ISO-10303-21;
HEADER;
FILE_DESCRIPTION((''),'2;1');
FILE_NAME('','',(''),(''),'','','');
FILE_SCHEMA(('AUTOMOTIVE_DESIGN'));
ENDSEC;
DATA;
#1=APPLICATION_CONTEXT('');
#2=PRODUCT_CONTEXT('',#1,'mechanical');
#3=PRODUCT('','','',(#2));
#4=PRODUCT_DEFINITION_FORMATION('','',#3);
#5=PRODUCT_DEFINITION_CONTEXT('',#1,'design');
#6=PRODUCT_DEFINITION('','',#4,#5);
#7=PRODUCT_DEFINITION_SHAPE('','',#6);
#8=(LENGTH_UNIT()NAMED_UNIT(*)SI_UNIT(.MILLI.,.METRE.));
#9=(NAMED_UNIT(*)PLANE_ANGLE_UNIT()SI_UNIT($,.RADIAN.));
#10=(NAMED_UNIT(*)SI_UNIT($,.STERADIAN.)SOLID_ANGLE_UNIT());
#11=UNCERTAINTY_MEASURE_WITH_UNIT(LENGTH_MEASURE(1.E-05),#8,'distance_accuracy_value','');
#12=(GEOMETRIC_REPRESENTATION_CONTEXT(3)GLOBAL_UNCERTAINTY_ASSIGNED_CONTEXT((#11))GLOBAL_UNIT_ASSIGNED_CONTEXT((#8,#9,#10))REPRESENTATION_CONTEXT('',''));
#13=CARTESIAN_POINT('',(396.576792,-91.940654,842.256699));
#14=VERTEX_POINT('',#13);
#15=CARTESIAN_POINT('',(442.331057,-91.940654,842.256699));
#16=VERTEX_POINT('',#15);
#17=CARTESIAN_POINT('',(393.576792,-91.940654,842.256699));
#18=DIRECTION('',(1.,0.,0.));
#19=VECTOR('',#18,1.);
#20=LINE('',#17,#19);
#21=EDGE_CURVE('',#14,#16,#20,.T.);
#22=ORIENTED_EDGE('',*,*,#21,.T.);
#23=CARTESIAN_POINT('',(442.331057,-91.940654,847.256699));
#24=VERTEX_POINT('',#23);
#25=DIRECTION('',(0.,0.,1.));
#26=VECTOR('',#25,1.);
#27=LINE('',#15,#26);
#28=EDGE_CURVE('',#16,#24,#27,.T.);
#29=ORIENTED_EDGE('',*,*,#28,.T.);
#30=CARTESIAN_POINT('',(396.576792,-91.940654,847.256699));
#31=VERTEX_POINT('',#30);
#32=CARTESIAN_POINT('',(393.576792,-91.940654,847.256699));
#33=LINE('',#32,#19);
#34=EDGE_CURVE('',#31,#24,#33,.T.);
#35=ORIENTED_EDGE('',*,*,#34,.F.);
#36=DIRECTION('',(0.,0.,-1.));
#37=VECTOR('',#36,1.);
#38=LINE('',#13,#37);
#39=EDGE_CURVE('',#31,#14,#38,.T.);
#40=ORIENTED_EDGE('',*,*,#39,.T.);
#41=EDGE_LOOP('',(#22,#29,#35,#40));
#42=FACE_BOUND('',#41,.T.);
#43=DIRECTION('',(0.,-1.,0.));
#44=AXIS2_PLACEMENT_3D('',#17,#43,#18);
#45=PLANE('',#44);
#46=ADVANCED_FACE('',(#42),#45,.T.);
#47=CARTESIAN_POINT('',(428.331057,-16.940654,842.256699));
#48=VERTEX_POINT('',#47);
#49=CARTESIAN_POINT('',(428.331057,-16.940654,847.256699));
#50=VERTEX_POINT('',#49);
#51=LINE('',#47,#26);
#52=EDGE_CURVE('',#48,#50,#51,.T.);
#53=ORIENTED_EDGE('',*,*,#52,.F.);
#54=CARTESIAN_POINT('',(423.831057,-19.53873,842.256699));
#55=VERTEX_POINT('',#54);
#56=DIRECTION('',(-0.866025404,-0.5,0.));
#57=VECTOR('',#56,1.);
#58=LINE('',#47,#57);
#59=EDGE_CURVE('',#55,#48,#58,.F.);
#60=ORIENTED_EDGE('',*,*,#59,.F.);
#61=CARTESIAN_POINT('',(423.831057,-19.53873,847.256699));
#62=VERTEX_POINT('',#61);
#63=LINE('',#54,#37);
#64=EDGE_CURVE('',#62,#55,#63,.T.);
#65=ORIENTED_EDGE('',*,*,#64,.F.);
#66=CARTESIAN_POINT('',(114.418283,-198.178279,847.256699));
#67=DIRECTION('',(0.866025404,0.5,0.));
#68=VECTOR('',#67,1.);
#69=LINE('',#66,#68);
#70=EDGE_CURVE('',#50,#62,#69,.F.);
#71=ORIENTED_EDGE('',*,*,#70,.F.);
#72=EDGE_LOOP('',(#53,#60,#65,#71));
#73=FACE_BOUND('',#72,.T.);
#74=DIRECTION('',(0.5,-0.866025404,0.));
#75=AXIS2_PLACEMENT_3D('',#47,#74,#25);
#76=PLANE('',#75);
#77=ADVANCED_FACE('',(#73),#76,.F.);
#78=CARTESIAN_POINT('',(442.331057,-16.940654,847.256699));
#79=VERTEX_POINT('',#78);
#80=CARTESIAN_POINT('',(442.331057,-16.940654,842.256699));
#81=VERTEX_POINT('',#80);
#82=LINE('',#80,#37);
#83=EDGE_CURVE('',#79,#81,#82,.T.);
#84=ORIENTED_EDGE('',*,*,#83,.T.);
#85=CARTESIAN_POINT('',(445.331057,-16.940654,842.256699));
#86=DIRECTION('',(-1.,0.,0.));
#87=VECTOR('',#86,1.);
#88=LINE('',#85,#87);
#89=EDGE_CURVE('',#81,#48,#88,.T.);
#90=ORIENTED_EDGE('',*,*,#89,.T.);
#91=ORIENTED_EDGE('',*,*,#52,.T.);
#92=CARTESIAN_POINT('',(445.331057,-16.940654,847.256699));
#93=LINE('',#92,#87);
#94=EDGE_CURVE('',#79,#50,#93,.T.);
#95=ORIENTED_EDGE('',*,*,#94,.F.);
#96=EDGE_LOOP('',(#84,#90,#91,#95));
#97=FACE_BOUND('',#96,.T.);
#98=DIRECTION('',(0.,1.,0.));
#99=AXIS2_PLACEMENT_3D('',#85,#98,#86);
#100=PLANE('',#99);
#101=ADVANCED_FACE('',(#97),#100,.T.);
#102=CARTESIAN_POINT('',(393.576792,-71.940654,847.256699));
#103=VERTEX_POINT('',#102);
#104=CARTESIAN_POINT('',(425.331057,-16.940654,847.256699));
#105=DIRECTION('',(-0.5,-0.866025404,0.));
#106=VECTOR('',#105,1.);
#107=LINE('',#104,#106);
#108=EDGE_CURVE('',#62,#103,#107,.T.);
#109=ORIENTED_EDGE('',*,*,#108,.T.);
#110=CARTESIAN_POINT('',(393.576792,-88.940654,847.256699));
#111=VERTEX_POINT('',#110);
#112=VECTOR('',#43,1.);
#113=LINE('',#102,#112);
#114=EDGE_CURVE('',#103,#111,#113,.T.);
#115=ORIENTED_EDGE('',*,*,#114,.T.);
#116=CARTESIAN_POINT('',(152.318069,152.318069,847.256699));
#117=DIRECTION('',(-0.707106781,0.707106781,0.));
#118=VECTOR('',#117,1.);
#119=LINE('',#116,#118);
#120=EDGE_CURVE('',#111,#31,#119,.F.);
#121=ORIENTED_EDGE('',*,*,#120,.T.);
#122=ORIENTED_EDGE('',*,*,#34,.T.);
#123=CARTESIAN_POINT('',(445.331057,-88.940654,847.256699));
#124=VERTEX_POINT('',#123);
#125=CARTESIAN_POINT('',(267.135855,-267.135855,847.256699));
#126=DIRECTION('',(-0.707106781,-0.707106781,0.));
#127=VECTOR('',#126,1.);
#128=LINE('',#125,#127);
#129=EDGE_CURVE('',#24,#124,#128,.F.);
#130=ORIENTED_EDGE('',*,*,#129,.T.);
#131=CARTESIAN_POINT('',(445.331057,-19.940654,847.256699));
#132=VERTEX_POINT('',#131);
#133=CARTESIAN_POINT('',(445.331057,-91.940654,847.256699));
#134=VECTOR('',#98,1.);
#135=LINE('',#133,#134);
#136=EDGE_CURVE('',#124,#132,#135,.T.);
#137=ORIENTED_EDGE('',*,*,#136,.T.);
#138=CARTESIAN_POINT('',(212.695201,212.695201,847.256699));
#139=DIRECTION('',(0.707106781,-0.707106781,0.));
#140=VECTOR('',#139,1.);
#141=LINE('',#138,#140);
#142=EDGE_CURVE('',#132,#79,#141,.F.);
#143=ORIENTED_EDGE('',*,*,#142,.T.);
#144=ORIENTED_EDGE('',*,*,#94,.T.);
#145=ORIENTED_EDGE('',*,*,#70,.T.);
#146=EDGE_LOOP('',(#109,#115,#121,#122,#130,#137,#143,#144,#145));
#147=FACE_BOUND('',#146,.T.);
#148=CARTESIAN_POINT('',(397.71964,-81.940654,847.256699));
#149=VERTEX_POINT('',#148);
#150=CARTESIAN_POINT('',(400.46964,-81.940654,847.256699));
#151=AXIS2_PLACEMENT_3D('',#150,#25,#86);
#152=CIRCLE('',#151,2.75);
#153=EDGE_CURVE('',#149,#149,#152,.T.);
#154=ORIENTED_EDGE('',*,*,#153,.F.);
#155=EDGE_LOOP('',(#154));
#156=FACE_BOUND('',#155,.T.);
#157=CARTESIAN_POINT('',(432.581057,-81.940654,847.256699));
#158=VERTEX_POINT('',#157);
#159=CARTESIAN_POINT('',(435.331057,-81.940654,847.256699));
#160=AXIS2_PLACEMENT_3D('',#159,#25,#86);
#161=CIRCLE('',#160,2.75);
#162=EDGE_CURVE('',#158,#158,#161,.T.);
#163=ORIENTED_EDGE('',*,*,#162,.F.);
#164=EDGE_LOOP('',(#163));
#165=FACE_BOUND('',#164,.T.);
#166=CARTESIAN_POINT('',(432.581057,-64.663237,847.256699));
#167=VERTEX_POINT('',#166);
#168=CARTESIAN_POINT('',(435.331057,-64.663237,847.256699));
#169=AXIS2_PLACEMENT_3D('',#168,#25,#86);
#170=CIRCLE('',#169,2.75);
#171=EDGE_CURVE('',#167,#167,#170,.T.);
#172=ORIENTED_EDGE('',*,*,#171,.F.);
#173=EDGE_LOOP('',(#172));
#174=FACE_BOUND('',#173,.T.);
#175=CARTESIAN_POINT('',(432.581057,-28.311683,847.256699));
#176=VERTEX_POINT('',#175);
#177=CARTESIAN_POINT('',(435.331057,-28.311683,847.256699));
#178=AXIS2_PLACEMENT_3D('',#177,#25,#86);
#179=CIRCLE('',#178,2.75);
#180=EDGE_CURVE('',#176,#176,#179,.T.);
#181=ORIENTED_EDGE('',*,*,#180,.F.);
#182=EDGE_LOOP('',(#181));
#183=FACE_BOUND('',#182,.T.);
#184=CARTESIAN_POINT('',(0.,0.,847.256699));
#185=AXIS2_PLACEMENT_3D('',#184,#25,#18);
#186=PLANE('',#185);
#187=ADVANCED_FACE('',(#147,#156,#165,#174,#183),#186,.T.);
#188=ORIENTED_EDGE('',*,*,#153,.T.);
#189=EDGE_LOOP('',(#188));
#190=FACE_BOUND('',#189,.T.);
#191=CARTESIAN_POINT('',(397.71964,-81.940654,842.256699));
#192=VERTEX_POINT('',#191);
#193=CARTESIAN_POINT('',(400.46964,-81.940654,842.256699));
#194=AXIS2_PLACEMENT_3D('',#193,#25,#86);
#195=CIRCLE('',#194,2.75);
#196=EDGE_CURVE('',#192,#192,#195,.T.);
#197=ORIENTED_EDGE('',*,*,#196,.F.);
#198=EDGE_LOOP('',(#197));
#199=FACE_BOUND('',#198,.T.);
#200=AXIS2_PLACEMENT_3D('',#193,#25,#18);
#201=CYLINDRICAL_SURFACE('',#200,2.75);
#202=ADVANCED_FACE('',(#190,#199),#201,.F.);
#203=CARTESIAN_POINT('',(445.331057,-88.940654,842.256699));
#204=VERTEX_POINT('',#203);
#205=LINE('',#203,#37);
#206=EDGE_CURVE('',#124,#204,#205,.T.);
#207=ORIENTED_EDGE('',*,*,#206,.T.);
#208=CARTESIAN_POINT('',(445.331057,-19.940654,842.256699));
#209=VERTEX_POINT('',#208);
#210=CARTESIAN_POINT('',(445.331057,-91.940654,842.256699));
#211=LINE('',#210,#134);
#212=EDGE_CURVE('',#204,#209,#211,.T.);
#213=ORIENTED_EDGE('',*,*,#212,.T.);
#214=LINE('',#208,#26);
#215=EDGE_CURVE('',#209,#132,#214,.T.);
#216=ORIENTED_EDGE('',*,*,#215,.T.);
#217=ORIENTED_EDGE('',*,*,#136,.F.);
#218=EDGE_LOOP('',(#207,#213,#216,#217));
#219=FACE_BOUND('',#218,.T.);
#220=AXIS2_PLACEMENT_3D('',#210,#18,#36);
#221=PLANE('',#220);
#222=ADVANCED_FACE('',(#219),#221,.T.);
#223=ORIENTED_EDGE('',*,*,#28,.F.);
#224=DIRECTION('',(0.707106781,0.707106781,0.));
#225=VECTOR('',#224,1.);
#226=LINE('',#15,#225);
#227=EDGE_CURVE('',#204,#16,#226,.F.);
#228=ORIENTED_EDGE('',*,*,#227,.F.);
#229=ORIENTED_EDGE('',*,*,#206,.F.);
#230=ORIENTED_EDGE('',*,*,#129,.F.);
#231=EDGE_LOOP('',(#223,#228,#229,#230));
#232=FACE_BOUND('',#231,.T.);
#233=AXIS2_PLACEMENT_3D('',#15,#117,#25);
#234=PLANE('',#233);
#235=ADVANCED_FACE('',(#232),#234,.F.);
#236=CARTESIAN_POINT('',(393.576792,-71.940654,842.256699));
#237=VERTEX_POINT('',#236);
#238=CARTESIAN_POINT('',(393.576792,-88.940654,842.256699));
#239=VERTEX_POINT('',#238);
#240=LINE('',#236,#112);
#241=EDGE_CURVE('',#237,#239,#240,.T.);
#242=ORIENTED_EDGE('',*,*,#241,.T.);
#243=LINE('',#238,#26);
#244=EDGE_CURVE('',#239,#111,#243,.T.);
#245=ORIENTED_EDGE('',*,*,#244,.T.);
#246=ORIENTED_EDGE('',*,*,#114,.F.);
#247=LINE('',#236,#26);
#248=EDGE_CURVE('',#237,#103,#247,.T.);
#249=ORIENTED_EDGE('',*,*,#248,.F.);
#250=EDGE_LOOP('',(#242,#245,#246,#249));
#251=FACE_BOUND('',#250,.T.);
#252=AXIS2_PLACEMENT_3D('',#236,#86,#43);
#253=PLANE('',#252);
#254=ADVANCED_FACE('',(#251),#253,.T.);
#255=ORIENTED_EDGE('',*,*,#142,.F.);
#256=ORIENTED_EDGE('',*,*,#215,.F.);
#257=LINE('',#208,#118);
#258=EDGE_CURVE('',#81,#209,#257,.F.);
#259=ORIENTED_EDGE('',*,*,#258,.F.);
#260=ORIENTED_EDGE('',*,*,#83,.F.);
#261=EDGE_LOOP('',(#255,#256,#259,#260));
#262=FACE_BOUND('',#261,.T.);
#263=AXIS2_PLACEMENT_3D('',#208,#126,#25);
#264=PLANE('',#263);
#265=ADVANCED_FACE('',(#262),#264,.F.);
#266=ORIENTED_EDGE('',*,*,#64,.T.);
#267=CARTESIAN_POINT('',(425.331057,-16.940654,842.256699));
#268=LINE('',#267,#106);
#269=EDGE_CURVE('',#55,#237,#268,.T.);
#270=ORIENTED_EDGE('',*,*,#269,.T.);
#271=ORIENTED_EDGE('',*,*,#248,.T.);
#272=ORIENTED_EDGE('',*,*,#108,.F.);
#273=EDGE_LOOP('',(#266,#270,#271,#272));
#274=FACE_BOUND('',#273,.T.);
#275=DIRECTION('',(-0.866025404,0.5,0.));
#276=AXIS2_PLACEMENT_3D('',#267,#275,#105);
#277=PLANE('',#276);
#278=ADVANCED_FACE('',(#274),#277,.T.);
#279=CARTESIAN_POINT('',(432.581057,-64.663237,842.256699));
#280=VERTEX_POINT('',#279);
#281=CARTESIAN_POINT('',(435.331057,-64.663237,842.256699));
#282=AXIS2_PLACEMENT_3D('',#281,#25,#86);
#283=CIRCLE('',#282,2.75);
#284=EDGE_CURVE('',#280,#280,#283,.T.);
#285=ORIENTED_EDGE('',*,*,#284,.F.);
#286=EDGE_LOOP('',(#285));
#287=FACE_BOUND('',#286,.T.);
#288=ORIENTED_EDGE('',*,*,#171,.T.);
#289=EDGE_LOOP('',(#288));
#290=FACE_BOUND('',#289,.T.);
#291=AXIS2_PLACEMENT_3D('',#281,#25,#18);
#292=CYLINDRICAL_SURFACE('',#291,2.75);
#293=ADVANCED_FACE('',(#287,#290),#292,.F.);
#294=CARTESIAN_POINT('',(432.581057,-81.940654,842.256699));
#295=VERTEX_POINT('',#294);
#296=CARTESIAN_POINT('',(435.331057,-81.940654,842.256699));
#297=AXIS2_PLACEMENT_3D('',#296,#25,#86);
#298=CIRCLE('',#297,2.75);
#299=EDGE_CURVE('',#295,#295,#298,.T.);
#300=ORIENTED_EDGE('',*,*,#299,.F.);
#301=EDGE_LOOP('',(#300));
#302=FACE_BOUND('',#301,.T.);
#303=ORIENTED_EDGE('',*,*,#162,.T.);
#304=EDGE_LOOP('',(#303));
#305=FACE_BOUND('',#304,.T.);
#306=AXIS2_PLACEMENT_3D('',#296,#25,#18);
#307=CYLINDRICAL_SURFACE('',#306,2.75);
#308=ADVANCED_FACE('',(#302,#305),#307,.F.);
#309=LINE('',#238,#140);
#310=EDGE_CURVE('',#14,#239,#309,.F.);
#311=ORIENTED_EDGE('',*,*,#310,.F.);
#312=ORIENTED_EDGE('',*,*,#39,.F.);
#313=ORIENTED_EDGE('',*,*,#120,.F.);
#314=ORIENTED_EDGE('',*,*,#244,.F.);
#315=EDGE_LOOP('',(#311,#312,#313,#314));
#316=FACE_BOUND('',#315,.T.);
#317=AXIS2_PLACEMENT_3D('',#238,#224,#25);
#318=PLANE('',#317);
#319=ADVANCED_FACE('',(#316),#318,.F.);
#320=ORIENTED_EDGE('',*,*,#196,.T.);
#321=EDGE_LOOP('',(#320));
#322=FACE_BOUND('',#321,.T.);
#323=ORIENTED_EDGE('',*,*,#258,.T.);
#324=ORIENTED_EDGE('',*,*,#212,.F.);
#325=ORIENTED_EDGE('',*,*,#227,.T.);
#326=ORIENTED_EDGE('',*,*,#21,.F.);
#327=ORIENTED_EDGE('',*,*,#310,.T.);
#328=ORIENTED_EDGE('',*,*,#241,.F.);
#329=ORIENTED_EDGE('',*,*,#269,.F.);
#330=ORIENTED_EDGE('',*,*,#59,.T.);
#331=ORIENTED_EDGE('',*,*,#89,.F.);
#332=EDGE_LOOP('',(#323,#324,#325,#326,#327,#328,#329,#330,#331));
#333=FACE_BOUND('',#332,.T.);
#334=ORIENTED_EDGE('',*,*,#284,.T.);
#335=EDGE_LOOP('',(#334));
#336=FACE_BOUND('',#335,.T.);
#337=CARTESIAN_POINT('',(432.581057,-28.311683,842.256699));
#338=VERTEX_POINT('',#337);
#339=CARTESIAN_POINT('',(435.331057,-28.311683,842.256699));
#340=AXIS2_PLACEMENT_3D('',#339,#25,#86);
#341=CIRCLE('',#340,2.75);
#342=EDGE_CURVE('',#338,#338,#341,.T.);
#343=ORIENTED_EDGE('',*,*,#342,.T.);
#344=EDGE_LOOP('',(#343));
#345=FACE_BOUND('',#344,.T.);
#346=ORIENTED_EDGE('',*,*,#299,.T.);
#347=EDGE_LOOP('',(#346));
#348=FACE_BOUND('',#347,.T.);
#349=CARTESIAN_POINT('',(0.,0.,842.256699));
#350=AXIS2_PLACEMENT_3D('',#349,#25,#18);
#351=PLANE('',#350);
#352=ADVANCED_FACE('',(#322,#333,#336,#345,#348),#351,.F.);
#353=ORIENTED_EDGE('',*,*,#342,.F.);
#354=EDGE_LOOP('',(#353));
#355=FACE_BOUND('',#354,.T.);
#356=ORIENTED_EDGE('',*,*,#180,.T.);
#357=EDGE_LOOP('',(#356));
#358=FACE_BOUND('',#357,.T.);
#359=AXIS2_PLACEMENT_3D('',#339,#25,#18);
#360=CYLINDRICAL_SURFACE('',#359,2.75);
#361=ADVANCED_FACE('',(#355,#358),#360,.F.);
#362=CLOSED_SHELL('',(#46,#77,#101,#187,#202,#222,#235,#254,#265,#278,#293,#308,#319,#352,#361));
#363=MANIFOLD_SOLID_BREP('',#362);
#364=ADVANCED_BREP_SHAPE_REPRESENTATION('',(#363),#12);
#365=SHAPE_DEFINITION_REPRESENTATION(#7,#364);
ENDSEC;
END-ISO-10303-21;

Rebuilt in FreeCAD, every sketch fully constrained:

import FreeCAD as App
import Part
import Sketcher
Q = App.Units.Quantity


def edges_at(feature, points):
    """Names of the edges that pass closest to the given points."""
    edges = feature.Shape.Edges
    near = lambda p: min(range(len(edges)), key=lambda i: edges[i].distToShape(Part.Vertex(*p))[0])
    return sorted({f"Edge{near(p) + 1}" for p in points})


def add_polygon(sketch, points):
    """Adds a closed chain of lines whose ends are joined by coincident constraints."""
    first, n = sketch.GeometryCount, len(points)
    for a, b in zip(points, points[1:] + points[:1]):
        sketch.addGeometry(Part.LineSegment(App.Vector(*a, 0), App.Vector(*b, 0)), False)
    for i in range(n):
        sketch.addConstraint(Sketcher.Constraint("Coincident", first + i, 2, first + (i + 1) % n, 1))

doc = App.newDocument("Part")
body = doc.addObject("PartDesign::Body", "Body")

# Sketch on XY plane
sketch1 = body.newObject("Sketcher::SketchObject", "Sketch")
sketch1.AttachmentSupport = (doc.getObject("XY_Plane"), [""])
sketch1.MapMode = "FlatFace"
sketch1.AttachmentOffset = App.Placement(App.Vector(0, 0, 847.256699), App.Rotation())
add_polygon(sketch1, [(445.331057, -16.940654), (425.331057, -16.940654), (393.576792, -71.940654), (393.576792, -91.940654), (445.331057, -91.940654)])  # lines 0-4
sketch1.addGeometry(Part.Circle(App.Vector(400.46964, -81.940654, 0), App.Vector(0, 0, 1), 2.75), False)  # 5
sketch1.addGeometry(Part.Circle(App.Vector(435.331057, -81.940654, 0), App.Vector(0, 0, 1), 2.75), False)  # 6
sketch1.addGeometry(Part.Circle(App.Vector(435.331057, -64.663237, 0), App.Vector(0, 0, 1), 2.75), False)  # 7
sketch1.addGeometry(Part.Circle(App.Vector(435.331057, -28.311683, 0), App.Vector(0, 0, 1), 2.75), False)  # 8
sketch1.addConstraint([
    Sketcher.Constraint("Horizontal", 0),
    Sketcher.Constraint("Vertical", 2),
    Sketcher.Constraint("Horizontal", 3),
    Sketcher.Constraint("Vertical", 4),
    Sketcher.Constraint("Equal", 5, 6),
    Sketcher.Constraint("Equal", 6, 7),
    Sketcher.Constraint("Equal", 7, 8),
    Sketcher.Constraint("Horizontal", 5, 3, 6, 3),
    Sketcher.Constraint("Vertical", 6, 3, 7, 3),
    Sketcher.Constraint("Vertical", 7, 3, 8, 3),
    Sketcher.Constraint("Equal", 0, 2),
    Sketcher.Constraint("Diameter", 5, Q("5.5 mm")),
    Sketcher.Constraint("DistanceX", 0, 2, 0, 1, Q("20 mm")),
    Sketcher.Constraint("DistanceY", 4, 1, 4, 2, Q("75 mm")),
    Sketcher.Constraint("Angle", 1, Q("-120 deg")),
    Sketcher.Constraint("DistanceX", 0, 2, 8, 3, Q("10 mm")),
    Sketcher.Constraint("DistanceY", 6, 3, 0, 2, Q("65 mm")),
    Sketcher.Constraint("DistanceX", -1, 1, 5, 3, Q("400.46964 mm")),
    Sketcher.Constraint("DistanceX", -1, 1, 1, 2, Q("393.576792 mm")),
    Sketcher.Constraint("DistanceY", 6, 3, 8, 3, Q("53.628971 mm")),
    Sketcher.Constraint("DistanceY", 5, 3, -1, 1, Q("81.940654 mm")),
    Sketcher.Constraint("DistanceY", 7, 3, -1, 1, Q("64.663237 mm")),
])
pad1 = body.newObject("PartDesign::Pad", "Pad")
pad1.Profile = sketch1
pad1.Length = 5
pad1.Reversed = True
doc.recompute()

chamfer = body.newObject("PartDesign::Chamfer", "Chamfer")
chamfer.Base = (pad1, edges_at(pad1, [
    (445.331, -91.941, 844.757),
    (393.577, -91.941, 844.757),
    (425.331, -16.941, 844.757),
    (445.331, -16.941, 844.757),
]))
chamfer.Size = 3

doc.recompute()
